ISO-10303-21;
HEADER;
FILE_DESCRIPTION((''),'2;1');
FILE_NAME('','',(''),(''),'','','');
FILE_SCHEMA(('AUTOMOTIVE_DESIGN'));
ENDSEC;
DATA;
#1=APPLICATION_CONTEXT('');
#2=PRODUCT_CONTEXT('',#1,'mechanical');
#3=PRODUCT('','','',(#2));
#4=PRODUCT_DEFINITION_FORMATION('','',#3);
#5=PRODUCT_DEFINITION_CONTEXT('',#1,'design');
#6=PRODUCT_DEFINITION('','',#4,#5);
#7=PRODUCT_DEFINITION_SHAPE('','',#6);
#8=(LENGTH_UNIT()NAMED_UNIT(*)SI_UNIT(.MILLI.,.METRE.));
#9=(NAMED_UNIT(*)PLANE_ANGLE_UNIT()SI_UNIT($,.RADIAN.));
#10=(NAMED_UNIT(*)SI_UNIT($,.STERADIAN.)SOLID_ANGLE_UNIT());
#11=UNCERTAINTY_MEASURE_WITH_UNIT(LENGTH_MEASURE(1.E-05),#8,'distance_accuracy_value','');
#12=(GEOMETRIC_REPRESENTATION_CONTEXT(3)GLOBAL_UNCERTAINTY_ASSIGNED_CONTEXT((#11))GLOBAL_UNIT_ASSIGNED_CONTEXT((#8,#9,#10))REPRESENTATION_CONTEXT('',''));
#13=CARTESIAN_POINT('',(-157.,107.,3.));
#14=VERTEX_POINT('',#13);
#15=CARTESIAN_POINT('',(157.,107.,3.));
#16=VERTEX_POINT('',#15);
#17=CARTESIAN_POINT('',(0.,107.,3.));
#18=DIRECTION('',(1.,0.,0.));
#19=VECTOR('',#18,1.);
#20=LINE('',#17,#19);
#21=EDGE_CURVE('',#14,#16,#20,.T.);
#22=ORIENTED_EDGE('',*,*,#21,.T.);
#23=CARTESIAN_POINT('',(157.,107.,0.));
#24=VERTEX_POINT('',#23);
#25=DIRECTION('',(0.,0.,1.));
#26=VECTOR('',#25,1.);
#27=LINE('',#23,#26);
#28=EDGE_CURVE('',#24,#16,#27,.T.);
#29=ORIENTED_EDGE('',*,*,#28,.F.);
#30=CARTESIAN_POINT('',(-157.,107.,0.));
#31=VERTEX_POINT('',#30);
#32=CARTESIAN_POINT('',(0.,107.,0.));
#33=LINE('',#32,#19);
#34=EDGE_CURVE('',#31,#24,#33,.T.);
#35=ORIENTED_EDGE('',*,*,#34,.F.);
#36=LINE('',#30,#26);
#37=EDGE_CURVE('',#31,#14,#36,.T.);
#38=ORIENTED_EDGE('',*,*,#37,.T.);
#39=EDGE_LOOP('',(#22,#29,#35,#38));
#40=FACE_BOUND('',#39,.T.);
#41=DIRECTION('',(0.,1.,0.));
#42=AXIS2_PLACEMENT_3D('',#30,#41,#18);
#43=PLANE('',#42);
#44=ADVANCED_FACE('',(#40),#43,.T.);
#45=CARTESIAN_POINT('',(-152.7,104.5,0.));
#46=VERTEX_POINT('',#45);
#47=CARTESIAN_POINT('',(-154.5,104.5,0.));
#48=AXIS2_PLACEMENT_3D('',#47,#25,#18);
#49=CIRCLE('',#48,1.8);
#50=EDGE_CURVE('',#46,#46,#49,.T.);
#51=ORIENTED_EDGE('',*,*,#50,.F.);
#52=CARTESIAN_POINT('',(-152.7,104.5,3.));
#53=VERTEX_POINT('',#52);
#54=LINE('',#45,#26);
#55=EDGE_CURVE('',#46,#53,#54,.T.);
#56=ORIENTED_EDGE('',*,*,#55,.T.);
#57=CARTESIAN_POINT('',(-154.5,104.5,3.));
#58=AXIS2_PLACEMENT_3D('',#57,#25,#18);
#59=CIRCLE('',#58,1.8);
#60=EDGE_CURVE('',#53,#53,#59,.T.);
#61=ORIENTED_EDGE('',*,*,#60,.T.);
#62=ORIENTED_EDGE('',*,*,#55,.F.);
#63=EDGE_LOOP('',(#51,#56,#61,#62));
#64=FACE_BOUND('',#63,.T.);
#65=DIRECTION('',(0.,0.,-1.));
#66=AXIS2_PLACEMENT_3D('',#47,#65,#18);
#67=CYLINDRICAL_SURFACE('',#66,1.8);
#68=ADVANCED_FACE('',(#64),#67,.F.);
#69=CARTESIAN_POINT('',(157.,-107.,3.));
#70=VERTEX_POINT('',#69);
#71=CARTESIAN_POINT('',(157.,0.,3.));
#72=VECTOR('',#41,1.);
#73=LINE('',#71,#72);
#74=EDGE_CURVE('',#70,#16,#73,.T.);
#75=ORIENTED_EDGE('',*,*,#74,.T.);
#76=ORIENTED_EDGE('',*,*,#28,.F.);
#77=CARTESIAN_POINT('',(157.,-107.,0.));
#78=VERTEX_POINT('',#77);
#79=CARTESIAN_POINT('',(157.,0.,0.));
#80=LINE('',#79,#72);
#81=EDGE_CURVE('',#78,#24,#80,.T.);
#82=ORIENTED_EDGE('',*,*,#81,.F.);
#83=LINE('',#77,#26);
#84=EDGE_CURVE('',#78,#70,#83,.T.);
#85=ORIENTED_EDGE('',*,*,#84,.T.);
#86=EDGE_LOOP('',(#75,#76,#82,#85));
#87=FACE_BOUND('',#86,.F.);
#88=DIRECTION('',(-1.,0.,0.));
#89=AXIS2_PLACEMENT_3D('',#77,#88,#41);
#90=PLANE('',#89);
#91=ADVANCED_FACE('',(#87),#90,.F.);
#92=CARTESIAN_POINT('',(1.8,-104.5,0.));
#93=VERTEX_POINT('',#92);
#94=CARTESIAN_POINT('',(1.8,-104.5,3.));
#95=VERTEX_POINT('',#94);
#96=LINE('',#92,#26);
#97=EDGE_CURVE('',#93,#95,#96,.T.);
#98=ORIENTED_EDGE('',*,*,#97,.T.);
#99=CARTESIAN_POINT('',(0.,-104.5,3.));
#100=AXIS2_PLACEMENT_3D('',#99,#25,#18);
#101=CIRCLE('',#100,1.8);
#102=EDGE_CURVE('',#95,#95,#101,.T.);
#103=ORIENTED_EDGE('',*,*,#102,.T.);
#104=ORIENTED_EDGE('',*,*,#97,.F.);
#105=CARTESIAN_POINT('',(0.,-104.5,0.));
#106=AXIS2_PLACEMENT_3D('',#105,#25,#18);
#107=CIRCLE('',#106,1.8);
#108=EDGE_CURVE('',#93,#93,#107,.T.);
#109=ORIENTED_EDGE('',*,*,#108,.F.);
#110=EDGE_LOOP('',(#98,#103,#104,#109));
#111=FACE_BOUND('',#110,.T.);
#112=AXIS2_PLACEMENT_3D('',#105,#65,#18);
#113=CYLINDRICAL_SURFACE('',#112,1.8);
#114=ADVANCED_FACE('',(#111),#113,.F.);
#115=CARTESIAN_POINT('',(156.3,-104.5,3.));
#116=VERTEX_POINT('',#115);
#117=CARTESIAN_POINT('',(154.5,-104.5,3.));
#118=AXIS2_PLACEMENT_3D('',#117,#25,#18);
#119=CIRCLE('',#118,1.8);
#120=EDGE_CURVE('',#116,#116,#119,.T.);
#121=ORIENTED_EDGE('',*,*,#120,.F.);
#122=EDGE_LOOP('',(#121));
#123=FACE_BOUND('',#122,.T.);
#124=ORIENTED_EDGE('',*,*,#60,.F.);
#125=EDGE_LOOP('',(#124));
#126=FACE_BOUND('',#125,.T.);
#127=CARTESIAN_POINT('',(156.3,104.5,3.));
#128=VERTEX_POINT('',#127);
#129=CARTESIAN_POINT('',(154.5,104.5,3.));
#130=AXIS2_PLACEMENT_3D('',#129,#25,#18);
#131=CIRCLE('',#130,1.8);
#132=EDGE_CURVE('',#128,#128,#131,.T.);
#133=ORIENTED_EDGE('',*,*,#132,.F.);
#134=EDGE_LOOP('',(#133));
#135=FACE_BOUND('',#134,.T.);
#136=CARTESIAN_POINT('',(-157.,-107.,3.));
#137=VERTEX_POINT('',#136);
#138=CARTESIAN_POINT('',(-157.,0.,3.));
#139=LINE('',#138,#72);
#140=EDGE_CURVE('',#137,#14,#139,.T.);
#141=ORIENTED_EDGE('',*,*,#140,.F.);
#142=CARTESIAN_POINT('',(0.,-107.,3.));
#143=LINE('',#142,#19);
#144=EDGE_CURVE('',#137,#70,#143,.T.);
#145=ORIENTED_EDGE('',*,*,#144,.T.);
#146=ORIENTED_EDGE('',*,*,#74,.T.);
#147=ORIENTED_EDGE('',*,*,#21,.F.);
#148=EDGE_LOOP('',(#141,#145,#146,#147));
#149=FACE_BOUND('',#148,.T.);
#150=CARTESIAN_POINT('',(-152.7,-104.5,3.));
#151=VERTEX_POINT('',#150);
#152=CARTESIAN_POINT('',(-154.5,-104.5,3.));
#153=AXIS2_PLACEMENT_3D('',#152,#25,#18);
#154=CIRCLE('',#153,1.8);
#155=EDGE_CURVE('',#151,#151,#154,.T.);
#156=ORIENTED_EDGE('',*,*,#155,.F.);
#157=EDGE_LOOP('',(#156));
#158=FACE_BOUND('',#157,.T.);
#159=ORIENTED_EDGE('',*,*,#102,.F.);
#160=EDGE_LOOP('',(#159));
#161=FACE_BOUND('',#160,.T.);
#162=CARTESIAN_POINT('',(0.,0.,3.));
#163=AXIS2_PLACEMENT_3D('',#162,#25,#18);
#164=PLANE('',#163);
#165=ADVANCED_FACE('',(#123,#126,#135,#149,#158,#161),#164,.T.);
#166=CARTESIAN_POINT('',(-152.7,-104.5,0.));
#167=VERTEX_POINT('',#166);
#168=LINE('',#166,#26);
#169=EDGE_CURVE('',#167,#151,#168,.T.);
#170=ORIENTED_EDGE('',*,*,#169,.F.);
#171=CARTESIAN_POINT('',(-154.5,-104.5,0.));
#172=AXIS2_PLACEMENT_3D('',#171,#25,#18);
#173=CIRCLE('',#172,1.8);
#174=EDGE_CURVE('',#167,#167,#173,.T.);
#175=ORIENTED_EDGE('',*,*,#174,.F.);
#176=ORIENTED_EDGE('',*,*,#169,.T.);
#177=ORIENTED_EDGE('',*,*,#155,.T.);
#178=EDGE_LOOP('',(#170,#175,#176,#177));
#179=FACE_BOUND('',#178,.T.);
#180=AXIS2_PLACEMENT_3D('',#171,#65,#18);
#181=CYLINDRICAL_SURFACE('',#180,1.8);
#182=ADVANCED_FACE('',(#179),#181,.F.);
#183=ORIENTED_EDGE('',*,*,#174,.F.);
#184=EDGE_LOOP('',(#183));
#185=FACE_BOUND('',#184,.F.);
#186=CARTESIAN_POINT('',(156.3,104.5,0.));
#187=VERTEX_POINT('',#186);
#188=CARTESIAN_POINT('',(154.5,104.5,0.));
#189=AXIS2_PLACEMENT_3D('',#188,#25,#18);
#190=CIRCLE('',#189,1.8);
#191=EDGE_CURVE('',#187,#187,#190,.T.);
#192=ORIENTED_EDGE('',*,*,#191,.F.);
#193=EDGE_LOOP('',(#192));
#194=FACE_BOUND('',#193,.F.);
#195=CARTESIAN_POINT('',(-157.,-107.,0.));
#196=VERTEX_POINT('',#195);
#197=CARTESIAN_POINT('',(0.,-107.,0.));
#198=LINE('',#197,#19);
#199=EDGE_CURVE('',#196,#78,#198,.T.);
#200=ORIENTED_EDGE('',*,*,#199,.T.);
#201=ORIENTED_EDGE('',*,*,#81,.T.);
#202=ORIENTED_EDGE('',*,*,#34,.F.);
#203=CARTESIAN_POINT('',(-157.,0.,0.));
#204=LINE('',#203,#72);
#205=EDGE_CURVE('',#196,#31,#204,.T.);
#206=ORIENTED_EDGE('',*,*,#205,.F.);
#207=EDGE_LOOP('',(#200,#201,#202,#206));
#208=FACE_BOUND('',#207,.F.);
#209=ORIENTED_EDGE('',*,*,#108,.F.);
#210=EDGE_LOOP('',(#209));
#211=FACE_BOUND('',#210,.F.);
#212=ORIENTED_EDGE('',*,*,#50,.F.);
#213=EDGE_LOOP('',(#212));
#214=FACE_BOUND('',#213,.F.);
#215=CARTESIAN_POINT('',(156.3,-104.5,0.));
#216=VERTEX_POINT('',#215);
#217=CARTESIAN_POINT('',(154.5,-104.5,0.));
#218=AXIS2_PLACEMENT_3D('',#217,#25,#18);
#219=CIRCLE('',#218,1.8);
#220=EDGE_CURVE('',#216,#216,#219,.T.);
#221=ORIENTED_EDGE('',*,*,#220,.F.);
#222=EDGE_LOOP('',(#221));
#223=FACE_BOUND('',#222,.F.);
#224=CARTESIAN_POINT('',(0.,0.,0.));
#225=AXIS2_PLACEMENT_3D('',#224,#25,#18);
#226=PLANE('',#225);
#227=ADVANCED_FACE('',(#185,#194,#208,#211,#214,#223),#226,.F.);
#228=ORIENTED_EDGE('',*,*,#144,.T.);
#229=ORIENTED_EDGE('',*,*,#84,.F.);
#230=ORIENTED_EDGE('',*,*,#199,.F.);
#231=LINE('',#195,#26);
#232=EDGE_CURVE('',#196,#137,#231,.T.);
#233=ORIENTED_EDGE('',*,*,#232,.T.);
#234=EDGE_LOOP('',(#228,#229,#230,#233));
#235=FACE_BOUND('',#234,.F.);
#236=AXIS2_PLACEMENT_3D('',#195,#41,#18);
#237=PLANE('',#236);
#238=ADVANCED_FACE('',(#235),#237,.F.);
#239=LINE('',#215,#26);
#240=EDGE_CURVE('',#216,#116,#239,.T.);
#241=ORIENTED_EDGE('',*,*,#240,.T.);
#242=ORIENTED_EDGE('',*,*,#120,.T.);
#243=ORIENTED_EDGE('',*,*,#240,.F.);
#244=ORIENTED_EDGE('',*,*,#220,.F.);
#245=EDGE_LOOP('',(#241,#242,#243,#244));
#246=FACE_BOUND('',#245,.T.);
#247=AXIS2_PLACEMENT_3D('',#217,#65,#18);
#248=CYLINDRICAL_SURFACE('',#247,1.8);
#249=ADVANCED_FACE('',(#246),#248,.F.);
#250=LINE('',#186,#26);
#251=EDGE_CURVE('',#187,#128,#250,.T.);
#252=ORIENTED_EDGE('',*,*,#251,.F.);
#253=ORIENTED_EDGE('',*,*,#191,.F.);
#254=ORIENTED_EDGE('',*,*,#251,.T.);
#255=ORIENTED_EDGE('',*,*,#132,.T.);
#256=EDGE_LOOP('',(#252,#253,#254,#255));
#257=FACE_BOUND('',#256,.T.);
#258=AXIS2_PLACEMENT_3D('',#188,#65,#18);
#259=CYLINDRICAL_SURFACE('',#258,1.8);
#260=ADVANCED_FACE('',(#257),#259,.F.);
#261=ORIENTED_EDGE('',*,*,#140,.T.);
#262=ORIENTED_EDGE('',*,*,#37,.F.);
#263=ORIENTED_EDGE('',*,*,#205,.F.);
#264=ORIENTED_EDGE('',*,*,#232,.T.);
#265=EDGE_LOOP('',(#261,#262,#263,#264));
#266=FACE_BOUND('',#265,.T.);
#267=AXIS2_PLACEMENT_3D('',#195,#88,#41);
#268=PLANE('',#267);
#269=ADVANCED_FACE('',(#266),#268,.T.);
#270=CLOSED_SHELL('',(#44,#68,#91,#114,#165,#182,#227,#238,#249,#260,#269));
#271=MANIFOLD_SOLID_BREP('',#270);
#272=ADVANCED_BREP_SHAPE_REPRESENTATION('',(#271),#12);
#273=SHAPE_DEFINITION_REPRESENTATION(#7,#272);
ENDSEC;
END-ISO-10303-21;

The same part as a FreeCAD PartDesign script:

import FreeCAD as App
import Part
import Sketcher
Q = App.Units.Quantity


def add_polygon(sketch, points):
    """Adds a closed chain of lines whose ends are joined by coincident constraints."""
    first, n = sketch.GeometryCount, len(points)
    for a, b in zip(points, points[1:] + points[:1]):
        sketch.addGeometry(Part.LineSegment(App.Vector(*a, 0), App.Vector(*b, 0)), False)
    for i in range(n):
        sketch.addConstraint(Sketcher.Constraint("Coincident", first + i, 2, first + (i + 1) % n, 1))

doc = App.newDocument("Part")
params = doc.addObject("Spreadsheet::Sheet", "Params")
for row, (alias, value) in enumerate([
    ("sketch1_diameter", "3.6 mm"),
    ("sketch1_width", "314 mm"),
    ("sketch1_height", "214 mm"),
    ("pad1_length", "3 mm"),
], start=1):
    params.set(f"A{row}", alias)
    params.set(f"B{row}", "=" + value)
    params.setAlias(f"B{row}", alias)

body = doc.addObject("PartDesign::Body", "Body")

# Sketch on XY plane
sketch1 = body.newObject("Sketcher::SketchObject", "Sketch")
sketch1.AttachmentSupport = (doc.getObject("XY_Plane"), [""])
sketch1.MapMode = "FlatFace"
add_polygon(sketch1, [(-157, 107), (-157, -107), (157, -107), (157, 107)])  # lines 0-3
sketch1.addGeometry(Part.Circle(App.Vector(-154.5, -104.5, 0), App.Vector(0, 0, 1), 1.8), False)  # 4
sketch1.addGeometry(Part.Circle(App.Vector(0, -104.5, 0), App.Vector(0, 0, 1), 1.8), False)  # 5
sketch1.addGeometry(Part.Circle(App.Vector(154.5, -104.5, 0), App.Vector(0, 0, 1), 1.8), False)  # 6
sketch1.addGeometry(Part.Circle(App.Vector(-154.5, 104.5, 0), App.Vector(0, 0, 1), 1.8), False)  # 7
sketch1.addGeometry(Part.Circle(App.Vector(154.5, 104.5, 0), App.Vector(0, 0, 1), 1.8), False)  # 8
sketch1.addConstraint(Sketcher.Constraint("Vertical", 0))
sketch1.addConstraint(Sketcher.Constraint("Horizontal", 1))
sketch1.addConstraint(Sketcher.Constraint("Vertical", 2))
sketch1.addConstraint(Sketcher.Constraint("Horizontal", 3))
sketch1.addConstraint(Sketcher.Constraint("Equal", 4, 5))
sketch1.addConstraint(Sketcher.Constraint("Equal", 5, 6))
sketch1.addConstraint(Sketcher.Constraint("Equal", 6, 7))
sketch1.addConstraint(Sketcher.Constraint("Equal", 7, 8))
sketch1.addConstraint(Sketcher.Constraint("Symmetric", 6, 3, 7, 3, -1, 1))
sketch1.addConstraint(Sketcher.Constraint("Symmetric", 4, 3, 8, 3, -1, 1))
sketch1.addConstraint(Sketcher.Constraint("Symmetric", 0, 2, 2, 2, -1, 1))
sketch1.addConstraint(Sketcher.Constraint("Symmetric", 4, 3, 6, 3, -2))
sketch1.addConstraint(Sketcher.Constraint("PointOnObject", 5, 3, -2))
sketch1.addConstraint(Sketcher.Constraint("Horizontal", 4, 3, 5, 3))
sketch1.addConstraint(Sketcher.Constraint("Diameter", 4, Q("3.6 mm")))
sketch1.addConstraint(Sketcher.Constraint("DistanceX", 1, 1, 1, 2, Q("314 mm")))
sketch1.addConstraint(Sketcher.Constraint("DistanceY", 0, 2, 0, 1, Q("214 mm")))
sketch1.addConstraint(Sketcher.Constraint("DistanceX", 4, 3, 6, 3, Q("309 mm")))
sketch1.addConstraint(Sketcher.Constraint("DistanceY", 4, 3, 7, 3, Q("209 mm")))
sketch1.setExpression("Constraints[18]", "Params.sketch1_diameter")
sketch1.setExpression("Constraints[19]", "Params.sketch1_width")
sketch1.setExpression("Constraints[20]", "Params.sketch1_height")
pad1 = body.newObject("PartDesign::Pad", "Pad")
pad1.Profile = sketch1
pad1.setExpression("Length", "Params.pad1_length")

doc.recompute()
